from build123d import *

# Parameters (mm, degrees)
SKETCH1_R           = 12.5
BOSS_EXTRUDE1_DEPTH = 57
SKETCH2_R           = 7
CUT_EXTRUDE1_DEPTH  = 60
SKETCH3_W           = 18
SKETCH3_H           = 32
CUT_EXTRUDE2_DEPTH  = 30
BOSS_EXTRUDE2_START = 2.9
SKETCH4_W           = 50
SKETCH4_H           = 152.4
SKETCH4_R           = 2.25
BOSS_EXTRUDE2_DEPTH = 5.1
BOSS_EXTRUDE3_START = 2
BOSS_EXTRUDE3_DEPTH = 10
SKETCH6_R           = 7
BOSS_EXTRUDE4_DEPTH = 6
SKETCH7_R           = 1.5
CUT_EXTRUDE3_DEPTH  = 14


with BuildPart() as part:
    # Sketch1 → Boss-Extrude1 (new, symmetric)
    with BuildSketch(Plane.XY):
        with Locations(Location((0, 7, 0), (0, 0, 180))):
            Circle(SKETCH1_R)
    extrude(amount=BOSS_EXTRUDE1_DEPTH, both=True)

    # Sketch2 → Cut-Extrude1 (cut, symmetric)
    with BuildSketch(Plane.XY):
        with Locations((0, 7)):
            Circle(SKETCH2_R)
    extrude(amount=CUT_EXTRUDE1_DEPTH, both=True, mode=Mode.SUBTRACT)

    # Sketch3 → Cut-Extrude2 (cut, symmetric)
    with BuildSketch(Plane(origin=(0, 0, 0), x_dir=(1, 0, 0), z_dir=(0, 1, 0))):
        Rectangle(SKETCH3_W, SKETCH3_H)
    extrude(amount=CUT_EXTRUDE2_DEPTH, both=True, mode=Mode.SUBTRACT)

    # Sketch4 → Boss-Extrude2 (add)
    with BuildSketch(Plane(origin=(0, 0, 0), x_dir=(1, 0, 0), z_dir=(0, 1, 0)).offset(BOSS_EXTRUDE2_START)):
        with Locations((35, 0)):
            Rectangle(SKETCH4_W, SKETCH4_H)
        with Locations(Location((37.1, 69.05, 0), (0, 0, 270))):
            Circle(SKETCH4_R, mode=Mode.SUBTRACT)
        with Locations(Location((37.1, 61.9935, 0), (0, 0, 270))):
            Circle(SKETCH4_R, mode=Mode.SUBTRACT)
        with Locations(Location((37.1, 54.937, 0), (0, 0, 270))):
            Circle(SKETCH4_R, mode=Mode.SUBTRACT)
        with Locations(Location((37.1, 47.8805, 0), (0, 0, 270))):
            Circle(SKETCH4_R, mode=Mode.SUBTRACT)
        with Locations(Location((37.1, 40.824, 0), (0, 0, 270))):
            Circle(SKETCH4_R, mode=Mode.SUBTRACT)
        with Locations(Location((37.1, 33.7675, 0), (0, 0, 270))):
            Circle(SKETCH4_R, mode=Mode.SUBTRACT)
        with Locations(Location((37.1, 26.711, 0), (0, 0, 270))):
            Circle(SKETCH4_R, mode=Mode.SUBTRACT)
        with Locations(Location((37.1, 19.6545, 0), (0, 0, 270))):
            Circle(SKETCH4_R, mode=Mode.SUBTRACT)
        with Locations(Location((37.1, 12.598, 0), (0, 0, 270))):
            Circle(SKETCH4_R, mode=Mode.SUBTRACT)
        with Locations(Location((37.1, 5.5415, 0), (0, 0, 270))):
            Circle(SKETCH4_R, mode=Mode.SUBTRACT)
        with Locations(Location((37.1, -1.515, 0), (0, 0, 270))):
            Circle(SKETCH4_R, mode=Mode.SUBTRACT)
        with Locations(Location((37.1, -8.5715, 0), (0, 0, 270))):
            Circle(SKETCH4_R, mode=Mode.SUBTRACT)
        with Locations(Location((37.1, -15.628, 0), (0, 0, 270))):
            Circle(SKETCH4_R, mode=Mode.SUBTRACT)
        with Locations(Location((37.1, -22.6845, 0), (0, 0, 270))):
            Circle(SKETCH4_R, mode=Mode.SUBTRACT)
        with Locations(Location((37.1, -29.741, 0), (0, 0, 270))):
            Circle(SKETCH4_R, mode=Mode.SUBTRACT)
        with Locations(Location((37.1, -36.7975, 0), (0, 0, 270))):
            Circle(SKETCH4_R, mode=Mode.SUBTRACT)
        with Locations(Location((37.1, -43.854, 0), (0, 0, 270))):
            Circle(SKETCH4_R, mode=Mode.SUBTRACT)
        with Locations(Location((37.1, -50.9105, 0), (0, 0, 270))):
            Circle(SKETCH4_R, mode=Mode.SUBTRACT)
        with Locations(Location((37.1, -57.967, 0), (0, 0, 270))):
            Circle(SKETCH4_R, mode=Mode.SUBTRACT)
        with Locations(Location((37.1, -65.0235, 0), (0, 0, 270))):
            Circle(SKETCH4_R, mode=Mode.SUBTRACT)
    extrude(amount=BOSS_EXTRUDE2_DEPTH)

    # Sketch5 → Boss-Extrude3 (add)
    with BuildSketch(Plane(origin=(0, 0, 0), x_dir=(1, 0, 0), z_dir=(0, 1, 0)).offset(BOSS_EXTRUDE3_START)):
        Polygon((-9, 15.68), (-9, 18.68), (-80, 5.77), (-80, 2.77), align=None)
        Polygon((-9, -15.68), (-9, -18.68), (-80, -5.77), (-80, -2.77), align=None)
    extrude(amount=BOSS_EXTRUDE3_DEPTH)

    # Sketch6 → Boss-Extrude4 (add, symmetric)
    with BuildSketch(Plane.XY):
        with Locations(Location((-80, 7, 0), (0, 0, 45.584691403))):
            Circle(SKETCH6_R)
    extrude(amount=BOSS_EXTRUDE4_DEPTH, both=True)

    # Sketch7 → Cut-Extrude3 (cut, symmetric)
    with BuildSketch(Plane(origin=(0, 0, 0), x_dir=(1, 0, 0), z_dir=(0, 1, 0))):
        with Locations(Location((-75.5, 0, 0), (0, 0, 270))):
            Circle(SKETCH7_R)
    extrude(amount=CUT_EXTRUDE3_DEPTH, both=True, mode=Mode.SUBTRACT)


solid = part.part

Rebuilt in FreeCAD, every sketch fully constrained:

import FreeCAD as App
import Part
import Sketcher

V = App.Vector
Q = App.Units.Quantity


def add_polygon(sketch, points):
    """Adds a closed chain of lines whose ends are joined by coincident constraints."""
    first, n = sketch.GeometryCount, len(points)
    for a, b in zip(points, points[1:] + points[:1]):
        sketch.addGeometry(Part.LineSegment(App.Vector(*a, 0), App.Vector(*b, 0)), False)
    for i in range(n):
        sketch.addConstraint(Sketcher.Constraint("Coincident", first + i, 2, first + (i + 1) % n, 1))

doc = App.newDocument("Part")
body = doc.addObject("PartDesign::Body", "Body")

sketch1 = body.newObject("Sketcher::SketchObject", "Sketch")
sketch1.AttachmentSupport = (doc.getObject("XY_Plane"), [""])
sketch1.MapMode = "FlatFace"
sketch1.addGeometry(Part.Circle(V(0, 7, 0), V(0, 0, 1), 12.5), False)
sketch1.addConstraint([
    Sketcher.Constraint("PointOnObject", 0, 3, -2),
    Sketcher.Constraint("Diameter", 0, Q("25 mm")),
    Sketcher.Constraint("DistanceY", -1, 1, 0, 3, Q("7 mm")),
])
pad1 = body.newObject("PartDesign::Pad", "Pad")
pad1.Profile = sketch1
pad1.Length = 114
pad1.Midplane = True

sketch2 = body.newObject("Sketcher::SketchObject", "Sketch001")
sketch2.AttachmentSupport = (doc.getObject("XY_Plane"), [""])
sketch2.MapMode = "FlatFace"
sketch2.addGeometry(Part.Circle(V(0, 7, 0), V(0, 0, 1), 7), False)
sketch2.addConstraint([
    Sketcher.Constraint("PointOnObject", 0, 3, -2),
    Sketcher.Constraint("Diameter", 0, Q("14 mm")),
    Sketcher.Constraint("DistanceY", -1, 1, 0, 3, Q("7 mm")),
])
pocket1 = body.newObject("PartDesign::Pocket", "Pocket")
pocket1.Profile = sketch2
pocket1.Length = 120
pocket1.Midplane = True

sketch3 = body.newObject("Sketcher::SketchObject", "Sketch002")
sketch3.AttachmentSupport = (doc.getObject("XZ_Plane"), [""])
sketch3.MapMode = "FlatFace"
add_polygon(sketch3, [(-9, -16), (-9, 16), (9, 16), (9, -16)])
sketch3.addConstraint([
    Sketcher.Constraint("Vertical", 0),
    Sketcher.Constraint("Horizontal", 1),
    Sketcher.Constraint("Vertical", 2),
    Sketcher.Constraint("Horizontal", 3),
    Sketcher.Constraint("Symmetric", 0, 2, 2, 2, -1, 1),
    Sketcher.Constraint("DistanceX", 1, 1, 1, 2, Q("18 mm")),
    Sketcher.Constraint("DistanceY", 0, 1, 0, 2, Q("32 mm")),
])
pocket2 = body.newObject("PartDesign::Pocket", "Pocket001")
pocket2.Profile = sketch3
pocket2.Length = 60
pocket2.Midplane = True

sketch4 = body.newObject("Sketcher::SketchObject", "Sketch003")
sketch4.AttachmentSupport = (doc.getObject("XZ_Plane"), [""])
sketch4.MapMode = "FlatFace"
sketch4.AttachmentOffset = App.Placement(V(0, 0, -2.9), App.Rotation())
add_polygon(sketch4, [(10, -76.2), (10, 76.2), (60, 76.2), (60, -76.2)])
sketch4.addGeometry(Part.Circle(V(37.1, 65.0235, 0), V(0, 0, 1), 2.25), False)
sketch4.addGeometry(Part.Circle(V(37.1, 57.967, 0), V(0, 0, 1), 2.25), False)
sketch4.addGeometry(Part.Circle(V(37.1, 50.9105, 0), V(0, 0, 1), 2.25), False)
sketch4.addGeometry(Part.Circle(V(37.1, 43.854, 0), V(0, 0, 1), 2.25), False)
sketch4.addGeometry(Part.Circle(V(37.1, 36.7975, 0), V(0, 0, 1), 2.25), False)
sketch4.addGeometry(Part.Circle(V(37.1, 29.741, 0), V(0, 0, 1), 2.25), False)
sketch4.addGeometry(Part.Circle(V(37.1, 22.6845, 0), V(0, 0, 1), 2.25), False)
sketch4.addGeometry(Part.Circle(V(37.1, 15.628, 0), V(0, 0, 1), 2.25), False)
sketch4.addGeometry(Part.Circle(V(37.1, 8.5715, 0), V(0, 0, 1), 2.25), False)
sketch4.addGeometry(Part.Circle(V(37.1, 1.515, 0), V(0, 0, 1), 2.25), False)
sketch4.addGeometry(Part.Circle(V(37.1, -5.5415, 0), V(0, 0, 1), 2.25), False)
sketch4.addGeometry(Part.Circle(V(37.1, -12.598, 0), V(0, 0, 1), 2.25), False)
sketch4.addGeometry(Part.Circle(V(37.1, -19.6545, 0), V(0, 0, 1), 2.25), False)
sketch4.addGeometry(Part.Circle(V(37.1, -26.711, 0), V(0, 0, 1), 2.25), False)
sketch4.addGeometry(Part.Circle(V(37.1, -33.7675, 0), V(0, 0, 1), 2.25), False)
sketch4.addGeometry(Part.Circle(V(37.1, -40.824, 0), V(0, 0, 1), 2.25), False)
sketch4.addGeometry(Part.Circle(V(37.1, -47.8805, 0), V(0, 0, 1), 2.25), False)
sketch4.addGeometry(Part.Circle(V(37.1, -54.937, 0), V(0, 0, 1), 2.25), False)
sketch4.addGeometry(Part.Circle(V(37.1, -61.9935, 0), V(0, 0, 1), 2.25), False)
sketch4.addGeometry(Part.Circle(V(37.1, -69.05, 0), V(0, 0, 1), 2.25), False)
sketch4.addConstraint([
    Sketcher.Constraint("Vertical", 0),
    Sketcher.Constraint("Horizontal", 1),
    Sketcher.Constraint("Vertical", 2),
    Sketcher.Constraint("Horizontal", 3),
    Sketcher.Constraint("Equal", 4, 5),
    Sketcher.Constraint("Equal", 5, 6),
    Sketcher.Constraint("Equal", 6, 7),
    Sketcher.Constraint("Equal", 7, 8),
    Sketcher.Constraint("Equal", 8, 9),
    Sketcher.Constraint("Equal", 9, 10),
    Sketcher.Constraint("Equal", 10, 11),
    Sketcher.Constraint("Equal", 11, 12),
    Sketcher.Constraint("Equal", 12, 13),
    Sketcher.Constraint("Equal", 13, 14),
    Sketcher.Constraint("Equal", 14, 15),
    Sketcher.Constraint("Equal", 15, 16),
    Sketcher.Constraint("Equal", 16, 17),
    Sketcher.Constraint("Equal", 17, 18),
    Sketcher.Constraint("Equal", 18, 19),
    Sketcher.Constraint("Equal", 19, 20),
    Sketcher.Constraint("Equal", 20, 21),
    Sketcher.Constraint("Equal", 21, 22),
    Sketcher.Constraint("Equal", 22, 23),
    Sketcher.Constraint("Vertical", 4, 3, 5, 3),
    Sketcher.Constraint("Vertical", 5, 3, 6, 3),
    Sketcher.Constraint("Vertical", 6, 3, 7, 3),
    Sketcher.Constraint("Vertical", 7, 3, 8, 3),
    Sketcher.Constraint("Vertical", 8, 3, 9, 3),
    Sketcher.Constraint("Vertical", 9, 3, 10, 3),
    Sketcher.Constraint("Vertical", 10, 3, 11, 3),
    Sketcher.Constraint("Vertical", 11, 3, 12, 3),
    Sketcher.Constraint("Vertical", 12, 3, 13, 3),
    Sketcher.Constraint("Vertical", 13, 3, 14, 3),
    Sketcher.Constraint("Vertical", 14, 3, 15, 3),
    Sketcher.Constraint("Vertical", 15, 3, 16, 3),
    Sketcher.Constraint("Vertical", 16, 3, 17, 3),
    Sketcher.Constraint("Vertical", 17, 3, 18, 3),
    Sketcher.Constraint("Vertical", 18, 3, 19, 3),
    Sketcher.Constraint("Vertical", 19, 3, 20, 3),
    Sketcher.Constraint("Vertical", 20, 3, 21, 3),
    Sketcher.Constraint("Vertical", 21, 3, 22, 3),
    Sketcher.Constraint("Vertical", 22, 3, 23, 3),
    Sketcher.Constraint("Diameter", 4, Q("4.5 mm")),
    Sketcher.Constraint("DistanceX", 1, 1, 1, 2, Q("50 mm")),
    Sketcher.Constraint("DistanceY", 0, 1, 0, 2, Q("152.4 mm")),
    Sketcher.Constraint("DistanceX", -1, 1, 0, 2, Q("10 mm")),
    Sketcher.Constraint("DistanceX", -1, 1, 4, 3, Q("37.1 mm")),
    Sketcher.Constraint("DistanceY", -1, 1, 0, 2, Q("76.2 mm")),
    Sketcher.Constraint("DistanceY", 23, 3, -1, 1, Q("69.05 mm")),
    Sketcher.Constraint("DistanceY", -1, 1, 5, 3, Q("57.967 mm")),
    Sketcher.Constraint("DistanceY", -1, 1, 7, 3, Q("43.854 mm")),
    Sketcher.Constraint("DistanceY", -1, 1, 9, 3, Q("29.741 mm")),
    Sketcher.Constraint("DistanceY", -1, 1, 11, 3, Q("15.628 mm")),
    Sketcher.Constraint("DistanceY", -1, 1, 13, 3, Q("1.515 mm")),
    Sketcher.Constraint("DistanceY", 15, 3, -1, 1, Q("12.598 mm")),
    Sketcher.Constraint("DistanceY", 17, 3, -1, 1, Q("26.711 mm")),
    Sketcher.Constraint("DistanceY", 19, 3, -1, 1, Q("40.824 mm")),
    Sketcher.Constraint("DistanceY", 21, 3, -1, 1, Q("54.937 mm")),
    Sketcher.Constraint("DistanceY", 6, 3, 4, 3, Q("14.113 mm")),
    Sketcher.Constraint("DistanceY", 8, 3, 6, 3, Q("14.113 mm")),
    Sketcher.Constraint("DistanceY", 10, 3, 8, 3, Q("14.113 mm")),
    Sketcher.Constraint("DistanceY", 12, 3, 10, 3, Q("14.113 mm")),
    Sketcher.Constraint("DistanceY", 14, 3, 12, 3, Q("14.113 mm")),
    Sketcher.Constraint("DistanceY", 16, 3, 14, 3, Q("14.113 mm")),
    Sketcher.Constraint("DistanceY", 18, 3, 16, 3, Q("14.113 mm")),
    Sketcher.Constraint("DistanceY", 20, 3, 18, 3, Q("14.113 mm")),
    Sketcher.Constraint("DistanceY", 22, 3, 20, 3, Q("14.113 mm")),
    Sketcher.Constraint("DistanceY", -1, 1, 4, 3, Q("65.0235 mm")),
])
pad2 = body.newObject("PartDesign::Pad", "Pad001")
pad2.Profile = sketch4
pad2.Length = 5.1
pad2.Reversed = True

sketch5 = body.newObject("Sketcher::SketchObject", "Sketch004")
sketch5.AttachmentSupport = (doc.getObject("XZ_Plane"), [""])
sketch5.MapMode = "FlatFace"
sketch5.AttachmentOffset = App.Placement(V(0, 0, -2), App.Rotation())
add_polygon(sketch5, [(-9, -15.68), (-9, -18.68), (-80, -5.77), (-80, -2.77)])
add_polygon(sketch5, [(-9, 18.68), (-9, 15.68), (-80, 2.77), (-80, 5.77)])
sketch5.addConstraint([
    Sketcher.Constraint("Vertical", 0),
    Sketcher.Constraint("Vertical", 2),
    Sketcher.Constraint("Vertical", 4),
    Sketcher.Constraint("Vertical", 6),
    Sketcher.Constraint("Symmetric", 3, 2, 4, 2, -1),
    Sketcher.Constraint("Symmetric", 2, 2, 5, 2, -1),
    Sketcher.Constraint("Parallel", 1, 3),
    Sketcher.Constraint("Parallel", 5, 7),
    Sketcher.Constraint("Equal", 2, 4),
    Sketcher.Constraint("DistanceY", 0, 2, 0, 1, Q("3 mm")),
    Sketcher.Constraint("DistanceX", 0, 2, -1, 1, Q("9 mm")),
    Sketcher.Constraint("DistanceX", 1, 2, -1, 1, Q("80 mm")),
    Sketcher.Constraint("DistanceY", 0, 2, -1, 1, Q("18.68 mm")),
    Sketcher.Constraint("DistanceY", 1, 2, -1, 1, Q("5.77 mm")),
])
pad3 = body.newObject("PartDesign::Pad", "Pad002")
pad3.Profile = sketch5
pad3.Length = 10
pad3.Reversed = True

sketch6 = body.newObject("Sketcher::SketchObject", "Sketch005")
sketch6.AttachmentSupport = (doc.getObject("XY_Plane"), [""])
sketch6.MapMode = "FlatFace"
sketch6.addGeometry(Part.Circle(V(-80, 7, 0), V(0, 0, 1), 7), False)
sketch6.addConstraint([
    Sketcher.Constraint("Diameter", 0, Q("14 mm")),
    Sketcher.Constraint("DistanceX", 0, 3, -1, 1, Q("80 mm")),
    Sketcher.Constraint("DistanceY", -1, 1, 0, 3, Q("7 mm")),
])
pad4 = body.newObject("PartDesign::Pad", "Pad003")
pad4.Profile = sketch6
pad4.Length = 12
pad4.Midplane = True

sketch7 = body.newObject("Sketcher::SketchObject", "Sketch006")
sketch7.AttachmentSupport = (doc.getObject("XZ_Plane"), [""])
sketch7.MapMode = "FlatFace"
sketch7.addGeometry(Part.Circle(V(-75.5, 0, 0), V(0, 0, 1), 1.5), False)
sketch7.addConstraint([
    Sketcher.Constraint("PointOnObject", 0, 3, -1),
    Sketcher.Constraint("Diameter", 0, Q("3 mm")),
    Sketcher.Constraint("DistanceX", 0, 3, -1, 1, Q("75.5 mm")),
])
pocket3 = body.newObject("PartDesign::Pocket", "Pocket002")
pocket3.Profile = sketch7
pocket3.Length = 28
pocket3.Midplane = True

doc.recompute()
